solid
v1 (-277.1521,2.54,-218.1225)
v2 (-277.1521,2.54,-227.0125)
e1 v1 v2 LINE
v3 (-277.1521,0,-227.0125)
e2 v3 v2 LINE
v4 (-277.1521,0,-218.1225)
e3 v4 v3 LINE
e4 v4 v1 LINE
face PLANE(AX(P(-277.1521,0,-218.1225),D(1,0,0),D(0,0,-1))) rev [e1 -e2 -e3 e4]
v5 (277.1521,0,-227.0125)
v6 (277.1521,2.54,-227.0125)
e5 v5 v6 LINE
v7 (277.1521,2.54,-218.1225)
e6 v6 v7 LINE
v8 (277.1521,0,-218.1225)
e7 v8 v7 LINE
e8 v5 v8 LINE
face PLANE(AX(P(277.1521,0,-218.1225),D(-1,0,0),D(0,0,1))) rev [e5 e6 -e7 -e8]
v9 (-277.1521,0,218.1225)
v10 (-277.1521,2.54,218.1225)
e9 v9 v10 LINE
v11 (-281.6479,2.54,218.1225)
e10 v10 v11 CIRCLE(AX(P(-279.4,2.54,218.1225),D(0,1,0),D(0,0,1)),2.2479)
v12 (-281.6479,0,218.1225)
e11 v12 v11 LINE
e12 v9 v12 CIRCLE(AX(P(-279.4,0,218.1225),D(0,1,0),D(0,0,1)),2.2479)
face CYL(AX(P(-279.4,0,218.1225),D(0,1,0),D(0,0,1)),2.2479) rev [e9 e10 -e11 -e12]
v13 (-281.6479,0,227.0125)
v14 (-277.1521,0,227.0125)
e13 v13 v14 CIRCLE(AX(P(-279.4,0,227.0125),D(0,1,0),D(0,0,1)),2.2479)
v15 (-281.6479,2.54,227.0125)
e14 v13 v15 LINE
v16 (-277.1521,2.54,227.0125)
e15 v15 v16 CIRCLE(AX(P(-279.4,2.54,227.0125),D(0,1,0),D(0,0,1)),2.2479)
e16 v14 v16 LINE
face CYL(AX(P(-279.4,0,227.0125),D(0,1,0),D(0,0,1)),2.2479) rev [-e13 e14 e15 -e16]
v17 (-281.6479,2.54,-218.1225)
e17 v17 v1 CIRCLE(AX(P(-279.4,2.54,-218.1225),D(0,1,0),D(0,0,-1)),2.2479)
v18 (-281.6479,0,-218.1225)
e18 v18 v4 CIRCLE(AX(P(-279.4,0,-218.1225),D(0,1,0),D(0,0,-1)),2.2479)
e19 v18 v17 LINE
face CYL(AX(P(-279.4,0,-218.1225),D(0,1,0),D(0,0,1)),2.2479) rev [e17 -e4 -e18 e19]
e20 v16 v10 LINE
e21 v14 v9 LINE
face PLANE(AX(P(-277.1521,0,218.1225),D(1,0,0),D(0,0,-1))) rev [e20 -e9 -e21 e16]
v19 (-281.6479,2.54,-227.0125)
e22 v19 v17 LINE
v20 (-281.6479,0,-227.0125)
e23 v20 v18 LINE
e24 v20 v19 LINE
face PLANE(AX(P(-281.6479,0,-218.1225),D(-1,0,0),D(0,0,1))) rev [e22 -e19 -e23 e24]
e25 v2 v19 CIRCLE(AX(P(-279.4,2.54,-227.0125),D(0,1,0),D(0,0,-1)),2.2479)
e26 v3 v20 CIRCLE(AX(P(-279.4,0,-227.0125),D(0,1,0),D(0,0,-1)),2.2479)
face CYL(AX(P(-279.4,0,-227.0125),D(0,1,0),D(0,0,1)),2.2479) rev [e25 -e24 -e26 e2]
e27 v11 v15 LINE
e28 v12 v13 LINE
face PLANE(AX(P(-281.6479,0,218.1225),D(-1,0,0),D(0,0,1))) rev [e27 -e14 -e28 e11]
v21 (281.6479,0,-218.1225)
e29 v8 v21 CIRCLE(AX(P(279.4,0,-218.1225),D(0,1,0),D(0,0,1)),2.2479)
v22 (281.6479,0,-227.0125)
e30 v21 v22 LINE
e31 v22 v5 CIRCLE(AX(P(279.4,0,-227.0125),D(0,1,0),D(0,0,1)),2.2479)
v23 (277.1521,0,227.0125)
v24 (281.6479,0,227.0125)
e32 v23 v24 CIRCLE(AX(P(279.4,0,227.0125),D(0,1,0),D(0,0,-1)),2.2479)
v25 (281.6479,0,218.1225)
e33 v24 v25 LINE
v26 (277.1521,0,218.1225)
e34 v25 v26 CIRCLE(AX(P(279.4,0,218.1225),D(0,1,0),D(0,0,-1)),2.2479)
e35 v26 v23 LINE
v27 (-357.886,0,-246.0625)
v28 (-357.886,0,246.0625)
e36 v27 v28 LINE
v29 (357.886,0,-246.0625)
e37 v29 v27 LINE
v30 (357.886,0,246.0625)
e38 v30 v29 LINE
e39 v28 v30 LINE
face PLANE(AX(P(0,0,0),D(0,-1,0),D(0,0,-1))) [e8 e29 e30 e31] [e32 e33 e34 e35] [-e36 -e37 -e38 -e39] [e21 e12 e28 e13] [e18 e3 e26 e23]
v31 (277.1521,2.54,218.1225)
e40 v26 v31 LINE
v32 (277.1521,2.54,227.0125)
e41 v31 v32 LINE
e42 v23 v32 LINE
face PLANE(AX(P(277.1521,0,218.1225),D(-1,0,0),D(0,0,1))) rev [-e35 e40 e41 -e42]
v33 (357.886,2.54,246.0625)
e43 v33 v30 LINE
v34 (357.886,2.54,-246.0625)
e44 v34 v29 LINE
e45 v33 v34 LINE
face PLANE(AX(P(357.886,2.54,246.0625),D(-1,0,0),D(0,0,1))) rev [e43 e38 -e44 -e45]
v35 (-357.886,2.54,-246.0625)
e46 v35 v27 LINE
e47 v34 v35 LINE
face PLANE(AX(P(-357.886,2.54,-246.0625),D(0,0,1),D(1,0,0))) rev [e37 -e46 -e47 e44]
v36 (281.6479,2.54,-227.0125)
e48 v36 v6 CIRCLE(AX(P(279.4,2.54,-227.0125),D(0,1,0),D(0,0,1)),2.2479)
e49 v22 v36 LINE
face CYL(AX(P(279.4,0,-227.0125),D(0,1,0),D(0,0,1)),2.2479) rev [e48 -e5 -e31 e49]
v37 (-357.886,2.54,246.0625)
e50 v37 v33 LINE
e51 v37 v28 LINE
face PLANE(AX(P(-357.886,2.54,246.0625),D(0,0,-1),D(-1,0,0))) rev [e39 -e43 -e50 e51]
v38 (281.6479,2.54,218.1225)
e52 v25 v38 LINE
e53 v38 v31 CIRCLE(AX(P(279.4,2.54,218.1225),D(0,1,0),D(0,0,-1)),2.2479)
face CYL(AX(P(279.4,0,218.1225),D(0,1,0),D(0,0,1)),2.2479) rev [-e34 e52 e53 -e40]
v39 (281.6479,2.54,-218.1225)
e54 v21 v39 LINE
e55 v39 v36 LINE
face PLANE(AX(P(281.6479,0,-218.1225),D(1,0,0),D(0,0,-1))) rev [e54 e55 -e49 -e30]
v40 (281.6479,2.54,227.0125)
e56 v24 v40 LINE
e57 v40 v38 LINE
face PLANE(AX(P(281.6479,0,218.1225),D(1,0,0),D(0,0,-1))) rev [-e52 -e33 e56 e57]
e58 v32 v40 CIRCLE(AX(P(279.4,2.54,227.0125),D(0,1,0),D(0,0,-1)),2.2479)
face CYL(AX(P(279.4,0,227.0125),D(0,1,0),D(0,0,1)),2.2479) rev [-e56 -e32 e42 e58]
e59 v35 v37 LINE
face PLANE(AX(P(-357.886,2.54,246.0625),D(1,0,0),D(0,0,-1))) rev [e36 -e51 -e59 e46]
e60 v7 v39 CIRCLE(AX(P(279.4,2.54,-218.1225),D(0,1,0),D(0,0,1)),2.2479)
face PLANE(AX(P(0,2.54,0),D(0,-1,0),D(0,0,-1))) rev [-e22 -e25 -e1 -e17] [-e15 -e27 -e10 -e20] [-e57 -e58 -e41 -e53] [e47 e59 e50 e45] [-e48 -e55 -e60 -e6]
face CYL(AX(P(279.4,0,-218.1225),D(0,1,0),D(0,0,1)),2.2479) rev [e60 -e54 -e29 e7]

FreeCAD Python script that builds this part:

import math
import FreeCAD as App
import Part
import Sketcher
from FreeCAD import Vector
Q = App.Units.Quantity

doc = App.newDocument("Part")
body = doc.addObject("PartDesign::Body", "Body")

sketch1 = body.newObject("Sketcher::SketchObject", "Sketch")
sketch1.AttachmentSupport = (doc.getObject("XZ_Plane"), [""])
sketch1.MapMode = "FlatFace"
sketch1.addGeometry([
    Part.LineSegment(Vector(-358, -246, 0), Vector(-358, 246, 0)),
    Part.LineSegment(Vector(-358, 246, 0), Vector(358, 246, 0)),
    Part.LineSegment(Vector(358, 246, 0), Vector(358, -246, 0)),
    Part.LineSegment(Vector(358, -246, 0), Vector(-358, -246, 0)),
], False)
sketch1.addConstraint([
    Sketcher.Constraint("Coincident", 0, 2, 1, 1),
    Sketcher.Constraint("Coincident", 1, 2, 2, 1),
    Sketcher.Constraint("Coincident", 2, 2, 3, 1),
    Sketcher.Constraint("Coincident", 3, 2, 0, 1),
    Sketcher.Constraint("Vertical", 0),
    Sketcher.Constraint("Horizontal", 1),
    Sketcher.Constraint("Vertical", 2),
    Sketcher.Constraint("Horizontal", 3),
    Sketcher.Constraint("Symmetric", 0, 2, 2, 2, -1, 1),
    Sketcher.Constraint("DistanceX", 1, 1, 1, 2, Q("28.18 in")),
    Sketcher.Constraint("DistanceY", 0, 1, 0, 2, Q("19.375 in")),
])
pad1 = body.newObject("PartDesign::Pad", "Pad")
pad1.Profile = sketch1
pad1.Length = Q("0.1 in")
pad1.Reversed = True

sketch2 = body.newObject("Sketcher::SketchObject", "Sketch001")
sketch2.AttachmentSupport = (doc.getObject("XZ_Plane"), [""])
sketch2.MapMode = "FlatFace"
sketch2.AttachmentOffset = App.Placement(Vector(0, 0, -0.1 * 25.4), App.Rotation())
sketch2.addGeometry([
    Part.LineSegment(Vector(277.2, -227, 0), Vector(277.2, -218.1, 0)),
    Part.ArcOfCircle(Part.Circle(Vector(279.4, -218.1, 0), Vector(0, 0, 1), 2.2), math.radians(0), math.radians(180)),
    Part.LineSegment(Vector(281.6, -218.1, 0), Vector(281.6, -227, 0)),
    Part.ArcOfCircle(Part.Circle(Vector(279.4, -227, 0), Vector(0, 0, 1), 2.2), math.radians(180), math.radians(360)),
    Part.LineSegment(Vector(-277.2, -218.1, 0), Vector(-277.2, -227, 0)),
    Part.ArcOfCircle(Part.Circle(Vector(-279.4, -227, 0), Vector(0, 0, 1), 2.2), math.radians(180), math.radians(360)),
    Part.LineSegment(Vector(-281.6, -227, 0), Vector(-281.6, -218.1, 0)),
    Part.ArcOfCircle(Part.Circle(Vector(-279.4, -218.1, 0), Vector(0, 0, 1), 2.2), math.radians(0), math.radians(180)),
    Part.LineSegment(Vector(277.2, 218.1, 0), Vector(277.2, 227, 0)),
    Part.ArcOfCircle(Part.Circle(Vector(279.4, 227, 0), Vector(0, 0, 1), 2.2), math.radians(0), math.radians(180)),
    Part.LineSegment(Vector(281.6, 227, 0), Vector(281.6, 218.1, 0)),
    Part.ArcOfCircle(Part.Circle(Vector(279.4, 218.1, 0), Vector(0, 0, 1), 2.2), math.radians(180), math.radians(360)),
    Part.LineSegment(Vector(-277.2, 227, 0), Vector(-277.2, 218.1, 0)),
    Part.ArcOfCircle(Part.Circle(Vector(-279.4, 218.1, 0), Vector(0, 0, 1), 2.2), math.radians(180), math.radians(360)),
    Part.LineSegment(Vector(-281.6, 218.1, 0), Vector(-281.6, 227, 0)),
    Part.ArcOfCircle(Part.Circle(Vector(-279.4, 227, 0), Vector(0, 0, 1), 2.2), math.radians(0), math.radians(180)),
], False)
sketch2.addConstraint([
    Sketcher.Constraint("Tangent", 0, 2, 1, 2),
    Sketcher.Constraint("Tangent", 1, 1, 2, 1),
    Sketcher.Constraint("Tangent", 2, 2, 3, 2),
    Sketcher.Constraint("Tangent", 3, 1, 0, 1),
    Sketcher.Constraint("Tangent", 4, 2, 5, 2),
    Sketcher.Constraint("Tangent", 5, 1, 6, 1),
    Sketcher.Constraint("Tangent", 6, 2, 7, 2),
    Sketcher.Constraint("Tangent", 7, 1, 4, 1),
    Sketcher.Constraint("Tangent", 8, 2, 9, 2),
    Sketcher.Constraint("Tangent", 9, 1, 10, 1),
    Sketcher.Constraint("Tangent", 10, 2, 11, 2),
    Sketcher.Constraint("Tangent", 11, 1, 8, 1),
    Sketcher.Constraint("Tangent", 12, 2, 13, 2),
    Sketcher.Constraint("Tangent", 13, 1, 14, 1),
    Sketcher.Constraint("Tangent", 14, 2, 15, 2),
    Sketcher.Constraint("Tangent", 15, 1, 12, 1),
    Sketcher.Constraint("Vertical", 0),
    Sketcher.Constraint("Vertical", 2),
    Sketcher.Constraint("Vertical", 4),
    Sketcher.Constraint("Vertical", 6),
    Sketcher.Constraint("Vertical", 8),
    Sketcher.Constraint("Vertical", 10),
    Sketcher.Constraint("Vertical", 12),
    Sketcher.Constraint("Vertical", 14),
    Sketcher.Constraint("Equal", 3, 5),
    Sketcher.Constraint("Equal", 7, 9),
    Sketcher.Constraint("Equal", 11, 13),
    Sketcher.Constraint("Symmetric", 5, 3, 9, 3, -1, 1),
    Sketcher.Constraint("Symmetric", 1, 3, 13, 3, -1, 1),
    Sketcher.Constraint("Symmetric", 3, 3, 5, 3, -2),
    Sketcher.Constraint("Horizontal", 1, 3, 7, 3),
    Sketcher.Constraint("Horizontal", 11, 3, 13, 3),
    Sketcher.Constraint("Horizontal", 9, 3, 15, 3),
    Sketcher.Constraint("DistanceX", -1, 1, 1, 3, Q("11 in")),
    Sketcher.Constraint("DistanceY", 0, 1, 0, 2, Q("0.35 in")),
    Sketcher.Constraint("Radius", 1, Q("0.0885 in")),
    Sketcher.Constraint("DistanceY", 3, 3, -1, 1, Q("8.9375 in")),
])
pocket1 = body.newObject("PartDesign::Pocket", "Pocket")
pocket1.Profile = sketch2
pocket1.Type = "ThroughAll"
pocket1.Reversed = True

doc.recompute()
